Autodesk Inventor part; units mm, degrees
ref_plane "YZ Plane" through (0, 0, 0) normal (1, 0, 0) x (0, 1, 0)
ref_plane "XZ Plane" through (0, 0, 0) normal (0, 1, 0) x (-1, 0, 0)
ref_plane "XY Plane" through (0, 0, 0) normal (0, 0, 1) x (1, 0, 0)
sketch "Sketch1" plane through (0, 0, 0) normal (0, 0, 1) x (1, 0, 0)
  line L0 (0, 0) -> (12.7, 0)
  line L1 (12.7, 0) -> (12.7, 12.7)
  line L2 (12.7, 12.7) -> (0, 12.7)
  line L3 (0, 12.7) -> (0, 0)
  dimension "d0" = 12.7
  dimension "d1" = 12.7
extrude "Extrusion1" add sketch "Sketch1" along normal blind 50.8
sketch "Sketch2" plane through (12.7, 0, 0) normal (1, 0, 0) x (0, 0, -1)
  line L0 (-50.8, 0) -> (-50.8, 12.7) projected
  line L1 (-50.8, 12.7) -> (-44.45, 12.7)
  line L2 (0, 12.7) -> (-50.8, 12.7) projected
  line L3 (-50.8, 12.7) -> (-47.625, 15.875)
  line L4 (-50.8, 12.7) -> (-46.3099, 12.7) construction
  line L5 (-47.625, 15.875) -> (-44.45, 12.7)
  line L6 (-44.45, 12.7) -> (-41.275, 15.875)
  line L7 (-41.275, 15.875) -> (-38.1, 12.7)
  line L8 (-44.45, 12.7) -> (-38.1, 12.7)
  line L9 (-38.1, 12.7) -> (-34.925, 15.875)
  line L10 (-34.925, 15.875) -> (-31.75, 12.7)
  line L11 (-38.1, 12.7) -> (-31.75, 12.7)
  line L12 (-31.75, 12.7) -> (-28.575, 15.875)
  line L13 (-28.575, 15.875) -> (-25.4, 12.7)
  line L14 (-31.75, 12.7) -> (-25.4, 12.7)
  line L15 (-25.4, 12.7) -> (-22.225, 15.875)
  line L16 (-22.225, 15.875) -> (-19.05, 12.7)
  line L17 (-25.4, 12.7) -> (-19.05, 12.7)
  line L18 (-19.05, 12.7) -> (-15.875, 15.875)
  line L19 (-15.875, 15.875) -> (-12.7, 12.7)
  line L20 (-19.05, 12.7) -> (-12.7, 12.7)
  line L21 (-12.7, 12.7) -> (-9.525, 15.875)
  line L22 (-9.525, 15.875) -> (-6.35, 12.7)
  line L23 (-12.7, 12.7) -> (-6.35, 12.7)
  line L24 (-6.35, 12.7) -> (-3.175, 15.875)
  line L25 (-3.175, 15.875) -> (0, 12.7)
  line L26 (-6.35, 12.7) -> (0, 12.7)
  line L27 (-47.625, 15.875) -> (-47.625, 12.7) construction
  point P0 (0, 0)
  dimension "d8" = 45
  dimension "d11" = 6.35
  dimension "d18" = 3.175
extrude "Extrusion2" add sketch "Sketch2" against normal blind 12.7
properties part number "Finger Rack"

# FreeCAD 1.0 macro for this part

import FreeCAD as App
import Part
import Sketcher
from FreeCAD import Vector
Q = App.Units.Quantity

doc = App.newDocument("Part")
body = doc.addObject("PartDesign::Body", "Body")

# Sketch on XY plane
sketch1 = body.newObject("Sketcher::SketchObject", "Sketch")
sketch1.AttachmentSupport = (doc.getObject("XY_Plane"), [""])
sketch1.MapMode = "FlatFace"
sketch1.addGeometry([
    Part.LineSegment(Vector(0, 13, 0), Vector(0, 0, 0)),
    Part.LineSegment(Vector(0, 0, 0), Vector(13, 0, 0)),
    Part.LineSegment(Vector(13, 0, 0), Vector(13, 13, 0)),
    Part.LineSegment(Vector(13, 13, 0), Vector(0, 13, 0)),
], False)
sketch1.addConstraint([
    Sketcher.Constraint("Coincident", 0, 2, 1, 1),
    Sketcher.Constraint("Coincident", 1, 2, 2, 1),
    Sketcher.Constraint("Coincident", 2, 2, 3, 1),
    Sketcher.Constraint("Coincident", 3, 2, 0, 1),
    Sketcher.Constraint("Vertical", 0),
    Sketcher.Constraint("Horizontal", 1),
    Sketcher.Constraint("Vertical", 2),
    Sketcher.Constraint("Horizontal", 3),
    Sketcher.Constraint("Coincident", 0, 2, -1, 1),
    Sketcher.Constraint("Equal", 3, 0),
    Sketcher.Constraint("DistanceX", 1, 1, 1, 2, Q("0.5 in")),
])
pad1 = body.newObject("PartDesign::Pad", "Pad")
pad1.Profile = sketch1
pad1.Length = Q("2 in")

# Sketch on YZ plane
sketch2 = body.newObject("Sketcher::SketchObject", "Sketch001")
sketch2.AttachmentSupport = (doc.getObject("YZ_Plane"), [""])
sketch2.MapMode = "FlatFace"
sketch2.AttachmentOffset = App.Placement(Vector(0, 0, 0.5 * 25.4), App.Rotation())
sketch2.addGeometry([
    Part.LineSegment(Vector(15.9, 47.6, 0), Vector(12.7, 50.8, 0)),  # 0
    Part.LineSegment(Vector(12.7, 50.8, 0), Vector(12.7, 44.5, 0)),  # 1
    Part.LineSegment(Vector(12.7, 44.5, 0), Vector(15.9, 47.6, 0)),  # 2
    Part.LineSegment(Vector(15.9, 3.2, 0), Vector(12.7, 6.3, 0)),  # 3
    Part.LineSegment(Vector(12.7, 6.3, 0), Vector(12.7, 0, 0)),  # 4
    Part.LineSegment(Vector(12.7, 0, 0), Vector(15.9, 3.2, 0)),  # 5
    Part.LineSegment(Vector(15.9, 9.5, 0), Vector(12.7, 12.7, 0)),  # 6
    Part.LineSegment(Vector(12.7, 12.7, 0), Vector(12.7, 6.3, 0)),  # 7
    Part.LineSegment(Vector(12.7, 6.3, 0), Vector(15.9, 9.5, 0)),  # 8
    Part.LineSegment(Vector(15.9, 15.9, 0), Vector(12.7, 19.1, 0)),  # 9
    Part.LineSegment(Vector(12.7, 19.1, 0), Vector(12.7, 12.7, 0)),  # 10
    Part.LineSegment(Vector(12.7, 12.7, 0), Vector(15.9, 15.9, 0)),  # 11
    Part.LineSegment(Vector(15.9, 22.2, 0), Vector(12.7, 25.4, 0)),  # 12
    Part.LineSegment(Vector(12.7, 25.4, 0), Vector(12.7, 19.1, 0)),  # 13
    Part.LineSegment(Vector(12.7, 19.1, 0), Vector(15.9, 22.2, 0)),  # 14
    Part.LineSegment(Vector(15.9, 28.6, 0), Vector(12.7, 31.8, 0)),  # 15
    Part.LineSegment(Vector(12.7, 31.8, 0), Vector(12.7, 25.4, 0)),  # 16
    Part.LineSegment(Vector(12.7, 25.4, 0), Vector(15.9, 28.6, 0)),  # 17
    Part.LineSegment(Vector(15.9, 34.9, 0), Vector(12.7, 38.1, 0)),  # 18
    Part.LineSegment(Vector(12.7, 38.1, 0), Vector(12.7, 31.8, 0)),  # 19
    Part.LineSegment(Vector(12.7, 31.8, 0), Vector(15.9, 34.9, 0)),  # 20
    Part.LineSegment(Vector(15.9, 41.3, 0), Vector(12.7, 44.5, 0)),  # 21
    Part.LineSegment(Vector(12.7, 44.5, 0), Vector(12.7, 38.1, 0)),  # 22
    Part.LineSegment(Vector(12.7, 38.1, 0), Vector(15.9, 41.3, 0)),  # 23
], False)
sketch2.addConstraint([
    Sketcher.Constraint("Coincident", 0, 2, 1, 1),
    Sketcher.Constraint("Coincident", 1, 2, 2, 1),
    Sketcher.Constraint("Coincident", 2, 2, 0, 1),
    Sketcher.Constraint("Coincident", 3, 2, 4, 1),
    Sketcher.Constraint("Coincident", 4, 2, 5, 1),
    Sketcher.Constraint("Coincident", 5, 2, 3, 1),
    Sketcher.Constraint("Coincident", 6, 2, 7, 1),
    Sketcher.Constraint("Coincident", 7, 2, 8, 1),
    Sketcher.Constraint("Coincident", 8, 2, 6, 1),
    Sketcher.Constraint("Coincident", 9, 2, 10, 1),
    Sketcher.Constraint("Coincident", 10, 2, 11, 1),
    Sketcher.Constraint("Coincident", 11, 2, 9, 1),
    Sketcher.Constraint("Coincident", 12, 2, 13, 1),
    Sketcher.Constraint("Coincident", 13, 2, 14, 1),
    Sketcher.Constraint("Coincident", 14, 2, 12, 1),
    Sketcher.Constraint("Coincident", 15, 2, 16, 1),
    Sketcher.Constraint("Coincident", 16, 2, 17, 1),
    Sketcher.Constraint("Coincident", 17, 2, 15, 1),
    Sketcher.Constraint("Coincident", 18, 2, 19, 1),
    Sketcher.Constraint("Coincident", 19, 2, 20, 1),
    Sketcher.Constraint("Coincident", 20, 2, 18, 1),
    Sketcher.Constraint("Coincident", 21, 2, 22, 1),
    Sketcher.Constraint("Coincident", 22, 2, 23, 1),
    Sketcher.Constraint("Coincident", 23, 2, 21, 1),
    Sketcher.Constraint("Vertical", 1),
    Sketcher.Constraint("Vertical", 4),
    Sketcher.Constraint("Vertical", 7),
    Sketcher.Constraint("Vertical", 10),
    Sketcher.Constraint("Vertical", 13),
    Sketcher.Constraint("Vertical", 16),
    Sketcher.Constraint("Vertical", 19),
    Sketcher.Constraint("Vertical", 22),
    Sketcher.Constraint("Coincident", 7, 2, 3, 2),
    Sketcher.Constraint("Coincident", 10, 2, 6, 2),
    Sketcher.Constraint("Coincident", 13, 2, 9, 2),
    Sketcher.Constraint("Coincident", 16, 2, 12, 2),
    Sketcher.Constraint("Coincident", 19, 2, 15, 2),
    Sketcher.Constraint("Coincident", 21, 2, 1, 2),
    Sketcher.Constraint("Coincident", 22, 2, 18, 2),
    Sketcher.Constraint("PointOnObject", 4, 2, -1),
    Sketcher.Constraint("Perpendicular", 0, 2),
    Sketcher.Constraint("Perpendicular", 2, 3),
    Sketcher.Constraint("Perpendicular", 3, 5),
    Sketcher.Constraint("Perpendicular", 5, 6),
    Sketcher.Constraint("Perpendicular", 6, 8),
    Sketcher.Constraint("Perpendicular", 8, 9),
    Sketcher.Constraint("Perpendicular", 9, 11),
    Sketcher.Constraint("Perpendicular", 11, 12),
    Sketcher.Constraint("Perpendicular", 12, 14),
    Sketcher.Constraint("Perpendicular", 14, 15),
    Sketcher.Constraint("Perpendicular", 15, 17),
    Sketcher.Constraint("Perpendicular", 17, 18),
    Sketcher.Constraint("Perpendicular", 18, 20),
    Sketcher.Constraint("Perpendicular", 20, 21),
    Sketcher.Constraint("Perpendicular", 21, 23),
    Sketcher.Constraint("Vertical", 2, 2, 5, 2),
    Sketcher.Constraint("Vertical", 5, 2, 8, 2),
    Sketcher.Constraint("Vertical", 8, 2, 11, 2),
    Sketcher.Constraint("Vertical", 11, 2, 14, 2),
    Sketcher.Constraint("Vertical", 14, 2, 17, 2),
    Sketcher.Constraint("Vertical", 17, 2, 20, 2),
    Sketcher.Constraint("Vertical", 20, 2, 23, 2),
    Sketcher.Constraint("Equal", 0, 2),
    Sketcher.Constraint("DistanceY", 1, 2, 1, 1, Q("0.25 in")),
    Sketcher.Constraint("DistanceX", -1, 1, 0, 2, Q("0.5 in")),
])
pad2 = body.newObject("PartDesign::Pad", "Pad001")
pad2.Profile = sketch2
pad2.Length = Q("0.5 in")
pad2.Reversed = True

doc.recompute()
